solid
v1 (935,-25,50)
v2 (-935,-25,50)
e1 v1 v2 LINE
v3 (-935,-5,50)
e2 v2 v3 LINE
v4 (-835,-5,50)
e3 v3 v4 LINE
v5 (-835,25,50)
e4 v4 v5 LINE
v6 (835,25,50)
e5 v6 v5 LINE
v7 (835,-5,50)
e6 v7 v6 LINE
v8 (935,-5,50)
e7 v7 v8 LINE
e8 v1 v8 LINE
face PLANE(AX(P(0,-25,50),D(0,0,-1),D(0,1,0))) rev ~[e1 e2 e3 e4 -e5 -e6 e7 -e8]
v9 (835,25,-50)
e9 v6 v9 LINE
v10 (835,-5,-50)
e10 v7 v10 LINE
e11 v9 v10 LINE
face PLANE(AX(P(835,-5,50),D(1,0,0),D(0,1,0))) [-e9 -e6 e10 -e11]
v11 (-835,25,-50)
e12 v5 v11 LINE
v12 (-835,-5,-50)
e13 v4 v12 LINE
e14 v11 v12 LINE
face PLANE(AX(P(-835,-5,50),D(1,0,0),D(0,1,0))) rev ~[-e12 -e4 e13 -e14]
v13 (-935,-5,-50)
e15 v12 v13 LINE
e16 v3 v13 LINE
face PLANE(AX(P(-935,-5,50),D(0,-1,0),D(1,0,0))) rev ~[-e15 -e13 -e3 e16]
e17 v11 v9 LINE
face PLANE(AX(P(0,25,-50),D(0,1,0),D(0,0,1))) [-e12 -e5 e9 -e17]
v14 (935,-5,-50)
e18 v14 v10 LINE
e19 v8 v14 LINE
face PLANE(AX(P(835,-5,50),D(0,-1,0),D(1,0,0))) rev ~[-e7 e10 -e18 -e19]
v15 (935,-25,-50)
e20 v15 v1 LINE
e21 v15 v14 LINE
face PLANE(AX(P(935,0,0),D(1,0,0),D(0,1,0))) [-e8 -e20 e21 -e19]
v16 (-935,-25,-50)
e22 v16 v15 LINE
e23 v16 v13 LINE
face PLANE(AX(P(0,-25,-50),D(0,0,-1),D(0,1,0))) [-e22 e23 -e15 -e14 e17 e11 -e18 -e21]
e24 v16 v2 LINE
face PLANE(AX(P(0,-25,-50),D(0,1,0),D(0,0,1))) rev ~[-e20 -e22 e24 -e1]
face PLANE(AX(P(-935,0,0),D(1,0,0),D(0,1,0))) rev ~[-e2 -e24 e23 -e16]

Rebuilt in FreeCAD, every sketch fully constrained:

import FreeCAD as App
import Part
import Sketcher

V = App.Vector

doc = App.newDocument("Part")
body = doc.addObject("PartDesign::Body", "Body")

# Sketch on YZ plane
sketch1 = body.newObject("Sketcher::SketchObject", "Sketch")
sketch1.AttachmentSupport = (doc.getObject("YZ_Plane"), [""])
sketch1.MapMode = "FlatFace"
sketch1.addGeometry([
    Part.LineSegment(V(-25, 50, 0), V(-25, -50, 0)),
    Part.LineSegment(V(-25, -50, 0), V(25, -50, 0)),
    Part.LineSegment(V(25, -50, 0), V(25, 50, 0)),
    Part.LineSegment(V(25, 50, 0), V(-25, 50, 0)),
], False)
sketch1.addConstraint([
    Sketcher.Constraint("Coincident", 0, 2, 1, 1),
    Sketcher.Constraint("Coincident", 1, 2, 2, 1),
    Sketcher.Constraint("Coincident", 2, 2, 3, 1),
    Sketcher.Constraint("Coincident", 3, 2, 0, 1),
    Sketcher.Constraint("Vertical", 0),
    Sketcher.Constraint("Horizontal", 1),
    Sketcher.Constraint("Vertical", 2),
    Sketcher.Constraint("Horizontal", 3),
    Sketcher.Constraint("Symmetric", 0, 2, 2, 2, -1, 1),
    Sketcher.Constraint("DistanceX", 1, 1, 1, 2, 50.0),
    Sketcher.Constraint("DistanceY", 0, 2, 0, 1, 100.0),
])
pad1 = body.newObject("PartDesign::Pad", "Pad")
pad1.Profile = sketch1
pad1.Length = 1870
pad1.Midplane = True

# Sketch on XY plane
sketch2 = body.newObject("Sketcher::SketchObject", "Sketch001")
sketch2.AttachmentSupport = (doc.getObject("XY_Plane"), [""])
sketch2.MapMode = "FlatFace"
sketch2.AttachmentOffset = App.Placement(V(0, 0, 50), App.Rotation())
sketch2.addGeometry([
    Part.LineSegment(V(-935, 25, 0), V(-935, -5, 0)),  # 0
    Part.LineSegment(V(-935, -5, 0), V(-835, -5, 0)),  # 1
    Part.LineSegment(V(-835, -5, 0), V(-835, 25, 0)),  # 2
    Part.LineSegment(V(-835, 25, 0), V(-935, 25, 0)),  # 3
    Part.LineSegment(V(835, 25, 0), V(835, -5, 0)),  # 4
    Part.LineSegment(V(835, -5, 0), V(935, -5, 0)),  # 5
    Part.LineSegment(V(935, -5, 0), V(935, 25, 0)),  # 6
    Part.LineSegment(V(935, 25, 0), V(835, 25, 0)),  # 7
], False)
sketch2.addConstraint([
    Sketcher.Constraint("Coincident", 0, 2, 1, 1),
    Sketcher.Constraint("Coincident", 1, 2, 2, 1),
    Sketcher.Constraint("Coincident", 2, 2, 3, 1),
    Sketcher.Constraint("Coincident", 3, 2, 0, 1),
    Sketcher.Constraint("Coincident", 4, 2, 5, 1),
    Sketcher.Constraint("Coincident", 5, 2, 6, 1),
    Sketcher.Constraint("Coincident", 6, 2, 7, 1),
    Sketcher.Constraint("Coincident", 7, 2, 4, 1),
    Sketcher.Constraint("Vertical", 0),
    Sketcher.Constraint("Horizontal", 1),
    Sketcher.Constraint("Vertical", 2),
    Sketcher.Constraint("Horizontal", 3),
    Sketcher.Constraint("Vertical", 4),
    Sketcher.Constraint("Horizontal", 5),
    Sketcher.Constraint("Vertical", 6),
    Sketcher.Constraint("Horizontal", 7),
    Sketcher.Constraint("Symmetric", 1, 2, 4, 2, -2),
    Sketcher.Constraint("Symmetric", 3, 2, 6, 2, -2),
    Sketcher.Constraint("DistanceX", 1, 1, 1, 2, 100.0),
    Sketcher.Constraint("DistanceY", 0, 2, 0, 1, 30.0),
    Sketcher.Constraint("DistanceX", 0, 2, -1, 1, 935.0),
    Sketcher.Constraint("DistanceY", 0, 2, -1, 1, 5.0),
])
pocket1 = body.newObject("PartDesign::Pocket", "Pocket")
pocket1.Profile = sketch2
pocket1.Type = "ThroughAll"

doc.recompute()
